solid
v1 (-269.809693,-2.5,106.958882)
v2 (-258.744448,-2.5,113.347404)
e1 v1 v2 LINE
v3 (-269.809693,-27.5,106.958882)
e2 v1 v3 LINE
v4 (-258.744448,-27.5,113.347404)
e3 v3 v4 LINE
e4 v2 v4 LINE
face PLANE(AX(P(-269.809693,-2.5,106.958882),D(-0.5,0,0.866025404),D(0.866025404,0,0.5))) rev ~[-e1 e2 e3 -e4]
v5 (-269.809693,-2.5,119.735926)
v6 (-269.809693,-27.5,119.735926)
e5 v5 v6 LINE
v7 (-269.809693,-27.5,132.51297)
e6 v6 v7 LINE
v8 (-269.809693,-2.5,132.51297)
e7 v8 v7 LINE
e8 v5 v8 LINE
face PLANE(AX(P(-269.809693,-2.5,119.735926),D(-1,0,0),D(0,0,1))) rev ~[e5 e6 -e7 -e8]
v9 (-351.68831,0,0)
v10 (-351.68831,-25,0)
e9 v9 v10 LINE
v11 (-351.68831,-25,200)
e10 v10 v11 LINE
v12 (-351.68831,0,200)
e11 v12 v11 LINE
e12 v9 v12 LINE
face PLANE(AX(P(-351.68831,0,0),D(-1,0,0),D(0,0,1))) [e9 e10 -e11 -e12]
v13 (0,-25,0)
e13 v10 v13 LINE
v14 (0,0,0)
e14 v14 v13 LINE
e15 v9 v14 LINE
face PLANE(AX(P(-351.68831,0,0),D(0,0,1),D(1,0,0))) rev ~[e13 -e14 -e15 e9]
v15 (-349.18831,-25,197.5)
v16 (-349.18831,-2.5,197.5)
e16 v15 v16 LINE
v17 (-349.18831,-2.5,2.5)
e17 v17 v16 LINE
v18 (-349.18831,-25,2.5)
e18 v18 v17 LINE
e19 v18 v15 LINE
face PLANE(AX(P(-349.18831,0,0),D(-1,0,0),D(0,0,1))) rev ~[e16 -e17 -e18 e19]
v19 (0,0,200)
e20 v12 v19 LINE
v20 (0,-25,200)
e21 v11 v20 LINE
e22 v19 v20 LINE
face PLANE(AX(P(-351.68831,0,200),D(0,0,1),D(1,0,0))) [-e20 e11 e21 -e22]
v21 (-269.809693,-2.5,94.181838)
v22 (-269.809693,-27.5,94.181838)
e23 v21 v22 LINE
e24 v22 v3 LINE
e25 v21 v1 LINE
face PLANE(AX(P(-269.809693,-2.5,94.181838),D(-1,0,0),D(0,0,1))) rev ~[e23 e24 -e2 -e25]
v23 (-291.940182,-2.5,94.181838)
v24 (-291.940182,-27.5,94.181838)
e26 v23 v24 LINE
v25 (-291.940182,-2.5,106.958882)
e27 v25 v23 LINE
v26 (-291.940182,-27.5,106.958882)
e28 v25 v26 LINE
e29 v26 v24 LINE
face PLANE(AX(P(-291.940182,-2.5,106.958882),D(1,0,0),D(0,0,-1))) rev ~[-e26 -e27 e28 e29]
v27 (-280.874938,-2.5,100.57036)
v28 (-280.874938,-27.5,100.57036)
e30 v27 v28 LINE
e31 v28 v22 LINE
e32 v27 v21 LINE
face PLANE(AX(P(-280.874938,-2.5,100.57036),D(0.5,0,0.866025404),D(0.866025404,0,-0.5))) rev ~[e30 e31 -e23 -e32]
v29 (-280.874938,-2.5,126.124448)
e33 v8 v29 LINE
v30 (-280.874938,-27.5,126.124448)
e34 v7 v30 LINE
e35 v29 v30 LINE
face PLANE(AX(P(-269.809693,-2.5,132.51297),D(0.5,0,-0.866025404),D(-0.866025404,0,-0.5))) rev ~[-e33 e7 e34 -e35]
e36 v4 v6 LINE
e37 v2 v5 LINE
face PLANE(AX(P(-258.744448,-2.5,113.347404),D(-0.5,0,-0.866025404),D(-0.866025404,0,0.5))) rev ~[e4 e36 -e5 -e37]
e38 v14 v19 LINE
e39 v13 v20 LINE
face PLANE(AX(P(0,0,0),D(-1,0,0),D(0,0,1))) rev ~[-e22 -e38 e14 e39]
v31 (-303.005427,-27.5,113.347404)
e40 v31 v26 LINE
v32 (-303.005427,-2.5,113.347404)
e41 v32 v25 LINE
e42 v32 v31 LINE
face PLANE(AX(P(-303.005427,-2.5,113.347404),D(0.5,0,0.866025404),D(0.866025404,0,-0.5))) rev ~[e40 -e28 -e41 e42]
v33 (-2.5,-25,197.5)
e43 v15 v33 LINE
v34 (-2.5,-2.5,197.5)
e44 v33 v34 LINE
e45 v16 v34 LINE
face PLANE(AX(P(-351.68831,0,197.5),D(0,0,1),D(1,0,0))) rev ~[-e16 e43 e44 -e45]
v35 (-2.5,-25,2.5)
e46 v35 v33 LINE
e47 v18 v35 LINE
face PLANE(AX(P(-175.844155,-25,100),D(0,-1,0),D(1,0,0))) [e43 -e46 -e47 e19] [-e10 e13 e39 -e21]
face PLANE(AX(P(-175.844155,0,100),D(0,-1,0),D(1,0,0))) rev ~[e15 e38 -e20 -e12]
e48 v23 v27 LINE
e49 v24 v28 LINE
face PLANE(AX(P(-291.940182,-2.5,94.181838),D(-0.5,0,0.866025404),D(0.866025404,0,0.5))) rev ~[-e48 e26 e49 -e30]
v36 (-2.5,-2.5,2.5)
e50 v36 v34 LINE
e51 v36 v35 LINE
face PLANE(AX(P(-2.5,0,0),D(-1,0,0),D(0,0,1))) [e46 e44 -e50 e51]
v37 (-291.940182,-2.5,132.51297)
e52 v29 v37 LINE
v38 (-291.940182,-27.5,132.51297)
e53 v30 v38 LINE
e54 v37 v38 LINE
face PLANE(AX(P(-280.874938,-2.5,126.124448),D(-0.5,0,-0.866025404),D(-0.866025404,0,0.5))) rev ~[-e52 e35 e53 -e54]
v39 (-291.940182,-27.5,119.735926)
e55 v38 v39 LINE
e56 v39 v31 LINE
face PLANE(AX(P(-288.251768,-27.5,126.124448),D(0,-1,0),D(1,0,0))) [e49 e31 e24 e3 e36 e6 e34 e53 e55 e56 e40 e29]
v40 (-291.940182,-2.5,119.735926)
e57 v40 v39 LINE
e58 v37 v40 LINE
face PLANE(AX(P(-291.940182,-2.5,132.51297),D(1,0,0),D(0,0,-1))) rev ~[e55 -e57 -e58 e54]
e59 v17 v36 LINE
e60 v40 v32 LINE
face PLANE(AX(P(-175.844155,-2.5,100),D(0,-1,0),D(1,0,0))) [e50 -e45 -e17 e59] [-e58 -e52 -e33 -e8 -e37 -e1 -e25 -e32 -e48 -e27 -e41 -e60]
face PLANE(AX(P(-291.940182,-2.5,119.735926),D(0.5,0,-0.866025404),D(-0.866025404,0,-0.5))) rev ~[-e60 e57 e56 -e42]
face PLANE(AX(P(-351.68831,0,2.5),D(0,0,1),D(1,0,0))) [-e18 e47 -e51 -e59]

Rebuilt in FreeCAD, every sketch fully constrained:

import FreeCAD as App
import Part
import Sketcher

V = App.Vector
Q = App.Units.Quantity


def faces_at(feature, points):
    """Names of the faces that lie closest to the given points."""
    faces = feature.Shape.Faces
    near = lambda p: min(range(len(faces)), key=lambda i: faces[i].distToShape(Part.Vertex(*p))[0])
    return sorted({f"Face{near(p) + 1}" for p in points})

doc = App.newDocument("Part")
params = doc.addObject("Spreadsheet::Sheet", "Params")
for row, (alias, value) in enumerate([
    ("sketch1_height", "200 mm"),
    ("pad1_length", "25 mm"),
    ("thickness_wall", "2.5 mm"),
    ("pad2_length", "25 mm"),
], start=1):
    params.set(f"A{row}", alias)
    params.set(f"B{row}", "=" + value)
    params.setAlias(f"B{row}", alias)

body = doc.addObject("PartDesign::Body", "Body")

sketch1 = doc.addObject("Sketcher::SketchObject", "Sketch")
body.addObject(sketch1)
sketch1.AttachmentSupport = (doc.XZ_Plane, [""])
sketch1.MapMode = "FlatFace"
sketch1.addGeometry([
    Part.LineSegment(V(-352, 200, 0), V(-352, 0, 0)),
    Part.LineSegment(V(-352, 0, 0), V(0, 0, 0)),
    Part.LineSegment(V(0, 0, 0), V(0, 200, 0)),
    Part.LineSegment(V(0, 200, 0), V(-352, 200, 0)),
], False)
sketch1.addConstraint([
    Sketcher.Constraint("Coincident", 0, 2, 1, 1),
    Sketcher.Constraint("Coincident", 1, 2, 2, 1),
    Sketcher.Constraint("Coincident", 2, 2, 3, 1),
    Sketcher.Constraint("Coincident", 3, 2, 0, 1),
    Sketcher.Constraint("Vertical", 0),
    Sketcher.Constraint("Horizontal", 1),
    Sketcher.Constraint("Vertical", 2),
    Sketcher.Constraint("Horizontal", 3),
    Sketcher.Constraint("Coincident", 1, 2, -1, 1),
    Sketcher.Constraint("DistanceY", 0, 2, 0, 1, Q("200 mm")),
    Sketcher.Constraint("DistanceX", 1, 1, 1, 2, Q("351.68831 mm")),
])
sketch1.setExpression("Constraints[9]", "Params.sketch1_height")
pad1 = doc.addObject("PartDesign::Pad", "Pad")
body.addObject(pad1)
pad1.Profile = sketch1
pad1.setExpression("Length", "Params.pad1_length")
doc.recompute()

thickness = doc.addObject("PartDesign::Thickness", "Thickness")
body.addObject(thickness)
thickness.Base = (pad1, faces_at(pad1, [(-175.844, -25, 100)]))
thickness.setExpression("Value", "Params.thickness_wall")
thickness.Reversed = True
thickness.Join = "Arc"

sketch2 = doc.addObject("Sketcher::SketchObject", "Sketch001")
body.addObject(sketch2)
sketch2.AttachmentSupport = (doc.XZ_Plane, [""])
sketch2.MapMode = "FlatFace"
sketch2.AttachmentOffset = App.Placement(V(0, 0, 2.5), App.Rotation())
sketch2.addGeometry([
    Part.LineSegment(V(-281, 126, 0), V(-292, 133, 0)),
    Part.LineSegment(V(-292, 133, 0), V(-292, 120, 0)),
    Part.LineSegment(V(-292, 120, 0), V(-303, 113, 0)),
    Part.LineSegment(V(-303, 113, 0), V(-292, 107, 0)),
    Part.LineSegment(V(-292, 107, 0), V(-292, 94, 0)),
    Part.LineSegment(V(-292, 94, 0), V(-281, 101, 0)),
    Part.LineSegment(V(-281, 101, 0), V(-270, 94, 0)),
    Part.LineSegment(V(-270, 94, 0), V(-270, 107, 0)),
    Part.LineSegment(V(-270, 107, 0), V(-259, 113, 0)),
    Part.LineSegment(V(-259, 113, 0), V(-270, 120, 0)),
    Part.LineSegment(V(-270, 120, 0), V(-270, 133, 0)),
    Part.LineSegment(V(-270, 133, 0), V(-281, 126, 0)),
], False)
sketch2.addConstraint([
    Sketcher.Constraint("Coincident", 0, 2, 1, 1),
    Sketcher.Constraint("Coincident", 1, 2, 2, 1),
    Sketcher.Constraint("Coincident", 2, 2, 3, 1),
    Sketcher.Constraint("Coincident", 3, 2, 4, 1),
    Sketcher.Constraint("Coincident", 4, 2, 5, 1),
    Sketcher.Constraint("Coincident", 5, 2, 6, 1),
    Sketcher.Constraint("Coincident", 6, 2, 7, 1),
    Sketcher.Constraint("Coincident", 7, 2, 8, 1),
    Sketcher.Constraint("Coincident", 8, 2, 9, 1),
    Sketcher.Constraint("Coincident", 9, 2, 10, 1),
    Sketcher.Constraint("Coincident", 10, 2, 11, 1),
    Sketcher.Constraint("Coincident", 11, 2, 0, 1),
    Sketcher.Constraint("Vertical", 1),
    Sketcher.Constraint("Vertical", 4),
    Sketcher.Constraint("Vertical", 7),
    Sketcher.Constraint("Vertical", 10),
    Sketcher.Constraint("Parallel", 0, 3),
    Sketcher.Constraint("Parallel", 2, 5),
    Sketcher.Constraint("Parallel", 3, 6),
    Sketcher.Constraint("Parallel", 5, 8),
    Sketcher.Constraint("Parallel", 6, 9),
    Sketcher.Constraint("Parallel", 8, 11),
    Sketcher.Constraint("Horizontal", 4, 2, 6, 2),
    Sketcher.Constraint("Horizontal", 3, 2, 7, 2),
    Sketcher.Constraint("Horizontal", 2, 2, 8, 2),
    Sketcher.Constraint("Horizontal", 1, 2, 9, 2),
    Sketcher.Constraint("Horizontal", 0, 2, 10, 2),
    Sketcher.Constraint("Vertical", 1, 2, 3, 2),
    Sketcher.Constraint("Vertical", 7, 2, 9, 2),
    Sketcher.Constraint("Equal", 1, 4),
    Sketcher.Constraint("Equal", 0, 2),
    Sketcher.Constraint("Angle", 0, Q("150 deg")),
    Sketcher.Constraint("DistanceY", 1, 2, 1, 1, Q("12.777044 mm")),
    Sketcher.Constraint("DistanceY", -1, 1, 0, 2, Q("132.51297 mm")),
    Sketcher.Constraint("DistanceY", -1, 1, 3, 2, Q("106.958882 mm")),
    Sketcher.Constraint("DistanceX", 8, 2, -1, 1, Q("258.744448 mm")),
])
pad2 = doc.addObject("PartDesign::Pad", "Pad001")
body.addObject(pad2)
pad2.Profile = sketch2
pad2.setExpression("Length", "Params.pad2_length")

doc.recompute()
